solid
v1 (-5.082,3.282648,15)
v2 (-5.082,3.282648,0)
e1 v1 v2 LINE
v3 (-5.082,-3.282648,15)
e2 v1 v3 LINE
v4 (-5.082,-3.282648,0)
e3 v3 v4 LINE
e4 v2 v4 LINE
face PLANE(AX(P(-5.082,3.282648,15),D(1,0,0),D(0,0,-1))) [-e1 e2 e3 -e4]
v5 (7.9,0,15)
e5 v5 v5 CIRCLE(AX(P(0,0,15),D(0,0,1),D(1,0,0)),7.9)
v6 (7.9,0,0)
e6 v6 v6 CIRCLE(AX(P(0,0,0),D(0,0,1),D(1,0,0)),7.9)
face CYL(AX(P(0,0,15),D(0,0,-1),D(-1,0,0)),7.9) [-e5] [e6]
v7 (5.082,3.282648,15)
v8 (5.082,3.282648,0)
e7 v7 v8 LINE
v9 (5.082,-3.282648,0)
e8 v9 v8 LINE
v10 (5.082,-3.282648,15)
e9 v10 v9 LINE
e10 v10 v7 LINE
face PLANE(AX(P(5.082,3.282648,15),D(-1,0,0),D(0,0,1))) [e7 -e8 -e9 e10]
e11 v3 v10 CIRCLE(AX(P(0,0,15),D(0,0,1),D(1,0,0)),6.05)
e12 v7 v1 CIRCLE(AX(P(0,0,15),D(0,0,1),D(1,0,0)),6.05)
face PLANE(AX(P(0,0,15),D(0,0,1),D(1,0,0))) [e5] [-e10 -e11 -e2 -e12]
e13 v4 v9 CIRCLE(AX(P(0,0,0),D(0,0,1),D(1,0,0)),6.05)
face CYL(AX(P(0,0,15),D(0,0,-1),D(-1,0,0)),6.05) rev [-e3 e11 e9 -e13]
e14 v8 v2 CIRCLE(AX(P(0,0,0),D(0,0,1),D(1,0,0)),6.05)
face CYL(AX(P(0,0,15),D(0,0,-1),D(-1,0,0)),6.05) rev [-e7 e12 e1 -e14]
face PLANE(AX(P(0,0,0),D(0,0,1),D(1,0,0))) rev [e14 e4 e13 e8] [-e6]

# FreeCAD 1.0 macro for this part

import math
import FreeCAD as App
import Part
import Sketcher

V = App.Vector
Q = App.Units.Quantity

doc = App.newDocument("Part")
body = doc.addObject("PartDesign::Body", "Body")

sketch1 = body.newObject("Sketcher::SketchObject", "Sketch")
sketch1.AttachmentSupport = (doc.getObject("XY_Plane"), [""])
sketch1.MapMode = "FlatFace"
sketch1.addGeometry([
    Part.Circle(V(0, 0, 0), V(0, 0, 1), 8),
    Part.LineSegment(V(-5, -3, 0), V(-5, 3, 0)),
    Part.ArcOfCircle(Part.Circle(V(0, 0, 0), V(0, 0, 1), 6), math.radians(33), math.radians(147)),
    Part.LineSegment(V(5, 3, 0), V(5, -3, 0)),
    Part.ArcOfCircle(Part.Circle(V(0, 0, 0), V(0, 0, 1), 6), math.radians(-147), math.radians(-33)),
], False)
sketch1.addConstraint([
    Sketcher.Constraint("Coincident", 1, 2, 2, 2),
    Sketcher.Constraint("Coincident", 2, 1, 3, 1),
    Sketcher.Constraint("Coincident", 3, 2, 4, 2),
    Sketcher.Constraint("Coincident", 4, 1, 1, 1),
    Sketcher.Constraint("Vertical", 1),
    Sketcher.Constraint("Vertical", 3),
    Sketcher.Constraint("Coincident", 0, 3, -1, 1),
    Sketcher.Constraint("Coincident", 2, 3, -1, 1),
    Sketcher.Constraint("Coincident", 4, 3, -1, 1),
    Sketcher.Constraint("Equal", 2, 4),
    Sketcher.Constraint("Horizontal", 1, 2, 2, 1),
    Sketcher.Constraint("Diameter", 0, Q("15.8 mm")),
    Sketcher.Constraint("Radius", 2, Q("6.05 mm")),
    Sketcher.Constraint("DistanceX", 1, 2, -1, 1, Q("5.082 mm")),
])
pad1 = body.newObject("PartDesign::Pad", "Pad")
pad1.Profile = sketch1
pad1.Length = 15

doc.recompute()
